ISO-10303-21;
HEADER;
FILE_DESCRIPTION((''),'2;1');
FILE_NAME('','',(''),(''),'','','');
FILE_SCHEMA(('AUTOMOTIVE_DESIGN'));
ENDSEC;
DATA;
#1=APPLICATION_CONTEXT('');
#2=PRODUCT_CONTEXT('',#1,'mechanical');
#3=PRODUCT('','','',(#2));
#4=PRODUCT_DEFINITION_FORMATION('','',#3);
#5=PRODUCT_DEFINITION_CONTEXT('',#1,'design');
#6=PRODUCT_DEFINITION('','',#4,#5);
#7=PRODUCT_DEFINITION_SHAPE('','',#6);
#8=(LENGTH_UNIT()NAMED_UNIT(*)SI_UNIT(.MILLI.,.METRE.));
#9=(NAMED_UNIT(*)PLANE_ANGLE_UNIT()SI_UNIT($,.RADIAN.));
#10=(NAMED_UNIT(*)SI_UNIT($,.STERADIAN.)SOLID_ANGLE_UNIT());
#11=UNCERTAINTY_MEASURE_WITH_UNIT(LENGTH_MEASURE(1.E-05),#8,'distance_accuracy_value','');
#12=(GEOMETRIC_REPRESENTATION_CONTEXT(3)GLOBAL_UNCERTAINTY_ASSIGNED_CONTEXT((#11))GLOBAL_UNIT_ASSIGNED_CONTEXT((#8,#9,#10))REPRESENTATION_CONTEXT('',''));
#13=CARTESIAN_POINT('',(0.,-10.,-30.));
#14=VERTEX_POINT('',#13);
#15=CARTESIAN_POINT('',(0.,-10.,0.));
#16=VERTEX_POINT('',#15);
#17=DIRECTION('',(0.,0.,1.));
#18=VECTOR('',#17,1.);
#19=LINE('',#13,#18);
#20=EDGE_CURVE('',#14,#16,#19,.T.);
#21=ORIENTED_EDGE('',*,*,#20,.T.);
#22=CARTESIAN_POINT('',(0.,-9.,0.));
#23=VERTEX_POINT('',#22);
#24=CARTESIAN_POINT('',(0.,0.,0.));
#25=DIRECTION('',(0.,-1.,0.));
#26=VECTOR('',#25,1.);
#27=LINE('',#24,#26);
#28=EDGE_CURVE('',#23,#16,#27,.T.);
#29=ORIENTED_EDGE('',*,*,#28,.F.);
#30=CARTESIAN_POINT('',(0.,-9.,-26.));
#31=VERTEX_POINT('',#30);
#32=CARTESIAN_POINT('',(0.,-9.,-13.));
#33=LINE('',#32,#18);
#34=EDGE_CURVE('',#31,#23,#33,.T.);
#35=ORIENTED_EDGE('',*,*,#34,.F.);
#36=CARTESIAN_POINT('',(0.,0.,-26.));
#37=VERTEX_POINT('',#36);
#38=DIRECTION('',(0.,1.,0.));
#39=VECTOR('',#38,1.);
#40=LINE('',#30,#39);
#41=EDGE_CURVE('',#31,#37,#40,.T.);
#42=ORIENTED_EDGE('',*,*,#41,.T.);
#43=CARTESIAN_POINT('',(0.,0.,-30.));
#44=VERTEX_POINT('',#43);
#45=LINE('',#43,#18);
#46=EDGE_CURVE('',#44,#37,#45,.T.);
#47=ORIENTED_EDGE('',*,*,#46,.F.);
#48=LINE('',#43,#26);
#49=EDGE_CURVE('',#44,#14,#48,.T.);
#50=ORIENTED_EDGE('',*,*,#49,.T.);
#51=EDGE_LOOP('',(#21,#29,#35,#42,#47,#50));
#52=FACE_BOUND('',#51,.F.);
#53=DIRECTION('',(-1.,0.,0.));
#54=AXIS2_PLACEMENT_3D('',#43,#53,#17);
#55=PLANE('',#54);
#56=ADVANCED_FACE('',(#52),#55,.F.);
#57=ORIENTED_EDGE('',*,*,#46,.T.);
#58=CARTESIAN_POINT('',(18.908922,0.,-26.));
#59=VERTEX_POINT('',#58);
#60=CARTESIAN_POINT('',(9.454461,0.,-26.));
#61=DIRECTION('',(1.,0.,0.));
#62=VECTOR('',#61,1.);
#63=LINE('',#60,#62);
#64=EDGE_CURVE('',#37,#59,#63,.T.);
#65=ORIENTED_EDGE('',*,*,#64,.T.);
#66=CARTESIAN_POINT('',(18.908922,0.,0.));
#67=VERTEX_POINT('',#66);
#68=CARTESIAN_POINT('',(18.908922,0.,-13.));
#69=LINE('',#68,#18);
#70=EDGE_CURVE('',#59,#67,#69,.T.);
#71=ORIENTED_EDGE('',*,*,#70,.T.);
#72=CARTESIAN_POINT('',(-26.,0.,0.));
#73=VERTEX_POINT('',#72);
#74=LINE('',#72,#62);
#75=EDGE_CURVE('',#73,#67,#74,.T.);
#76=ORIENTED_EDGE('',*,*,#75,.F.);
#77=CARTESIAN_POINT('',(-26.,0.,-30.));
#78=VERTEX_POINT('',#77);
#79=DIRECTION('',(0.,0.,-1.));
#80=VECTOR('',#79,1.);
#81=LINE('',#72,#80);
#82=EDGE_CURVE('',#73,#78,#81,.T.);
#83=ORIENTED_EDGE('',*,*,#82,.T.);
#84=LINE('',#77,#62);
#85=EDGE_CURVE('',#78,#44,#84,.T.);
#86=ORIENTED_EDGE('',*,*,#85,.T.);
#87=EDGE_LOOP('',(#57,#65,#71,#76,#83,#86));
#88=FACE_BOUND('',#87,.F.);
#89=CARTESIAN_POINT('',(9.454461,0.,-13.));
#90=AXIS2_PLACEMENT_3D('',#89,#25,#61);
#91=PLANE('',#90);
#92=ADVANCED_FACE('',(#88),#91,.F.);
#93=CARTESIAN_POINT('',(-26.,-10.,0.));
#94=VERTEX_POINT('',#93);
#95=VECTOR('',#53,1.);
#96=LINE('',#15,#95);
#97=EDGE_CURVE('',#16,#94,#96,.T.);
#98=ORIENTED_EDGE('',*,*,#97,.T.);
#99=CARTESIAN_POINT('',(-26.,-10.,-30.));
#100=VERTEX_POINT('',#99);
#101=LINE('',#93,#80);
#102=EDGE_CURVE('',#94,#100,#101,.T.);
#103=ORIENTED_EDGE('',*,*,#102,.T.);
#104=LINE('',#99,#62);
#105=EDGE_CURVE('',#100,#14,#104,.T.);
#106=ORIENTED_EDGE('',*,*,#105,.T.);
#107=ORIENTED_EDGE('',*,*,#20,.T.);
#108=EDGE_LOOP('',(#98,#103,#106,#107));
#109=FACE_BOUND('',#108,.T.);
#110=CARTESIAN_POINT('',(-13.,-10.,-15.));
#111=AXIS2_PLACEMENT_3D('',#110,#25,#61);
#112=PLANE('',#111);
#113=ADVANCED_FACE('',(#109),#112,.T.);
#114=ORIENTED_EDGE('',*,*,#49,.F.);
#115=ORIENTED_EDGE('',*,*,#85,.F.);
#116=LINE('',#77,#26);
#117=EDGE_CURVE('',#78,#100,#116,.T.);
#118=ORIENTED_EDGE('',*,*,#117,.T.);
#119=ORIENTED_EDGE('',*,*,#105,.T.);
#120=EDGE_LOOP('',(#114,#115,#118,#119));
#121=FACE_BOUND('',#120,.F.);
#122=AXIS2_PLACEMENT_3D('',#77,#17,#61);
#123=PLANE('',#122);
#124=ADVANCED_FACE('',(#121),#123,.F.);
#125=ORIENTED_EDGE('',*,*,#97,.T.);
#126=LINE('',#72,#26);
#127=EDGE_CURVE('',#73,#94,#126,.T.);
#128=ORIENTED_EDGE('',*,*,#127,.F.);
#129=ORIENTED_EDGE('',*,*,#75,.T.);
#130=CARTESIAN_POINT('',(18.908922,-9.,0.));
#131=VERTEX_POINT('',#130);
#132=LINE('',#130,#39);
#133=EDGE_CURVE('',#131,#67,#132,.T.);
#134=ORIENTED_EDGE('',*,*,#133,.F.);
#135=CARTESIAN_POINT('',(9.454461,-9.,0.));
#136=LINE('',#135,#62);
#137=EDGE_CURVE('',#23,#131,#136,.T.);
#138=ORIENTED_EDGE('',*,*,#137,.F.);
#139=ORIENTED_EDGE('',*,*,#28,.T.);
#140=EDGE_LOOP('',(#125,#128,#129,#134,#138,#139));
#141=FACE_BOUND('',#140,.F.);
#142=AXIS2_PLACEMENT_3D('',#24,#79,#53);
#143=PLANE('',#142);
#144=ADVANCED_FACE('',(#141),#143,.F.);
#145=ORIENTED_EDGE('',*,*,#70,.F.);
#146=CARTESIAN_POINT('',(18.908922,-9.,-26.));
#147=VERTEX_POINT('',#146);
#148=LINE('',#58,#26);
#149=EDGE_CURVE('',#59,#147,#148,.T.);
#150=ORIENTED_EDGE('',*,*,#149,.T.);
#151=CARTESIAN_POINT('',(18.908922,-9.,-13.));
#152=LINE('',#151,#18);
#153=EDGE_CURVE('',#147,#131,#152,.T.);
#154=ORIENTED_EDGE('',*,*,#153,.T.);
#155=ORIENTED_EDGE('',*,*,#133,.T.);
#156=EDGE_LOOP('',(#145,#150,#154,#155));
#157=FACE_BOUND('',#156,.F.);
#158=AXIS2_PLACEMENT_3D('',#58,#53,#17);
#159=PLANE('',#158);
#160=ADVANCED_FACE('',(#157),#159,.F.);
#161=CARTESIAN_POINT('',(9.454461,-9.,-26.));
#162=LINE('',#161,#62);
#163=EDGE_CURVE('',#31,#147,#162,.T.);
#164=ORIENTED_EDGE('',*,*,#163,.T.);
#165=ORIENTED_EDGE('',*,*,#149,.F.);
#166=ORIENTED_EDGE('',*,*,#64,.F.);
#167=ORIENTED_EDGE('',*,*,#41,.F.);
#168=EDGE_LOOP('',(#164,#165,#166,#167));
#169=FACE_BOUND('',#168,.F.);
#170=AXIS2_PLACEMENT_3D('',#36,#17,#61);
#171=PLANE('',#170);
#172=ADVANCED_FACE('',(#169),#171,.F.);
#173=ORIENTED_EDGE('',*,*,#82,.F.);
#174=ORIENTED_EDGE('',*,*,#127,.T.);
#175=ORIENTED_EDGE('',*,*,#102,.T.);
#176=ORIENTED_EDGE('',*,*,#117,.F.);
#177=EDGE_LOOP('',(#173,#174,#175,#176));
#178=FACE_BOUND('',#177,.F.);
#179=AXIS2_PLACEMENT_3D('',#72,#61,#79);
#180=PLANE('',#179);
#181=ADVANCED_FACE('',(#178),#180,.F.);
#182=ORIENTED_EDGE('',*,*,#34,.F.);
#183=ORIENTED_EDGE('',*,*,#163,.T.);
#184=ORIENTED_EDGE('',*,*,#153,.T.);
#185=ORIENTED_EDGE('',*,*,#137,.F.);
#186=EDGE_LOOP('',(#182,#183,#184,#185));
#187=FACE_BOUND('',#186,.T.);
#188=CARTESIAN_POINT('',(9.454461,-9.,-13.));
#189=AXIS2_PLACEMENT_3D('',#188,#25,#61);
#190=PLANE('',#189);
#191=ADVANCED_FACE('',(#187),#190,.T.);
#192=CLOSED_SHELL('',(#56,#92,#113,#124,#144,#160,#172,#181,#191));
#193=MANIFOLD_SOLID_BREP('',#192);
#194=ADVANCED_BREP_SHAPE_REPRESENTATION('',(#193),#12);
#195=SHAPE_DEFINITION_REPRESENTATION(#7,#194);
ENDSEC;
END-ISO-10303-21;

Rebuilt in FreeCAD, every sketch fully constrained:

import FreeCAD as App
import Part
import Sketcher

V = App.Vector
Q = App.Units.Quantity


def add_polygon(sketch, points):
    """Adds a closed chain of lines whose ends are joined by coincident constraints."""
    first, n = sketch.GeometryCount, len(points)
    for a, b in zip(points, points[1:] + points[:1]):
        sketch.addGeometry(Part.LineSegment(App.Vector(*a, 0), App.Vector(*b, 0)), False)
    for i in range(n):
        sketch.addConstraint(Sketcher.Constraint("Coincident", first + i, 2, first + (i + 1) % n, 1))

doc = App.newDocument("Part")
params = doc.addObject("Spreadsheet::Sheet", "Params")
for row, (alias, value) in enumerate([
    ("sketch1_width", "26 mm"),
    ("sketch1_height", "30 mm"),
    ("pad1_length", "10 mm"),
    ("sketch2_height", "26 mm"),
    ("pad2_length", "9 mm"),
    ("sketch3_height", "26 mm"),
    ("pocket1_length", "1 mm"),
], start=1):
    params.set(f"A{row}", alias)
    params.set(f"B{row}", "=" + value)
    params.setAlias(f"B{row}", alias)

body = doc.addObject("PartDesign::Body", "Body")

sketch1 = doc.addObject("Sketcher::SketchObject", "Sketch")
body.addObject(sketch1)
sketch1.AttachmentSupport = (doc.XZ_Plane, [""])
sketch1.MapMode = "FlatFace"
add_polygon(sketch1, [(0, 0), (-26, 0), (-26, -30), (0, -30)])
sketch1.addConstraint([
    Sketcher.Constraint("Horizontal", 0),
    Sketcher.Constraint("Vertical", 1),
    Sketcher.Constraint("Horizontal", 2),
    Sketcher.Constraint("Vertical", 3),
    Sketcher.Constraint("Coincident", 3, 2, -1, 1),
    Sketcher.Constraint("DistanceX", 0, 2, 0, 1, Q("26 mm")),
    Sketcher.Constraint("DistanceY", 1, 2, 1, 1, Q("30 mm")),
])
sketch1.setExpression("Constraints[9]", "Params.sketch1_width")
sketch1.setExpression("Constraints[10]", "Params.sketch1_height")
pad1 = doc.addObject("PartDesign::Pad", "Pad")
body.addObject(pad1)
pad1.Profile = sketch1
pad1.setExpression("Length", "Params.pad1_length")

sketch2 = doc.addObject("Sketcher::SketchObject", "Sketch001")
body.addObject(sketch2)
sketch2.AttachmentSupport = (doc.XZ_Plane, [""])
sketch2.MapMode = "FlatFace"
add_polygon(sketch2, [(0, 0), (0, -26), (19, -26), (19, 0)])
sketch2.addConstraint([
    Sketcher.Constraint("Vertical", 0),
    Sketcher.Constraint("Horizontal", 1),
    Sketcher.Constraint("Vertical", 2),
    Sketcher.Constraint("Horizontal", 3),
    Sketcher.Constraint("Coincident", 3, 2, -1, 1),
    Sketcher.Constraint("DistanceY", 0, 2, 0, 1, Q("26 mm")),
    Sketcher.Constraint("DistanceX", 1, 1, 1, 2, Q("18.908922 mm")),
])
sketch2.setExpression("Constraints[9]", "Params.sketch2_height")
pad2 = doc.addObject("PartDesign::Pad", "Pad001")
body.addObject(pad2)
pad2.Profile = sketch2
pad2.setExpression("Length", "Params.pad2_length")

sketch3 = doc.addObject("Sketcher::SketchObject", "Sketch002")
body.addObject(sketch3)
sketch3.AttachmentSupport = (doc.XZ_Plane, [""])
sketch3.MapMode = "FlatFace"
add_polygon(sketch3, [(21.4, 0), (18.9, 0), (18.9, -26), (0, -26), (0, -30.4), (21.4, -30.4)])
sketch3.addConstraint([
    Sketcher.Constraint("Horizontal", 0),
    Sketcher.Constraint("Vertical", 1),
    Sketcher.Constraint("Horizontal", 2),
    Sketcher.Constraint("Vertical", 3),
    Sketcher.Constraint("Horizontal", 4),
    Sketcher.Constraint("Vertical", 5),
    Sketcher.Constraint("PointOnObject", 0, 2, -1),
    Sketcher.Constraint("PointOnObject", 2, 2, -2),
    Sketcher.Constraint("DistanceY", 1, 2, 1, 1, Q("26 mm")),
    Sketcher.Constraint("DistanceX", 4, 1, 4, 2, Q("21.377379 mm")),
    Sketcher.Constraint("DistanceY", 3, 2, 3, 1, Q("4.423839 mm")),
    Sketcher.Constraint("DistanceX", 0, 2, 0, 1, Q("2.468457 mm")),
])
sketch3.setExpression("Constraints[14]", "Params.sketch3_height")
pocket1 = doc.addObject("PartDesign::Pocket", "Pocket")
body.addObject(pocket1)
pocket1.Profile = sketch3
pocket1.setExpression("Length", "Params.pocket1_length")
pocket1.Reversed = True

doc.recompute()
